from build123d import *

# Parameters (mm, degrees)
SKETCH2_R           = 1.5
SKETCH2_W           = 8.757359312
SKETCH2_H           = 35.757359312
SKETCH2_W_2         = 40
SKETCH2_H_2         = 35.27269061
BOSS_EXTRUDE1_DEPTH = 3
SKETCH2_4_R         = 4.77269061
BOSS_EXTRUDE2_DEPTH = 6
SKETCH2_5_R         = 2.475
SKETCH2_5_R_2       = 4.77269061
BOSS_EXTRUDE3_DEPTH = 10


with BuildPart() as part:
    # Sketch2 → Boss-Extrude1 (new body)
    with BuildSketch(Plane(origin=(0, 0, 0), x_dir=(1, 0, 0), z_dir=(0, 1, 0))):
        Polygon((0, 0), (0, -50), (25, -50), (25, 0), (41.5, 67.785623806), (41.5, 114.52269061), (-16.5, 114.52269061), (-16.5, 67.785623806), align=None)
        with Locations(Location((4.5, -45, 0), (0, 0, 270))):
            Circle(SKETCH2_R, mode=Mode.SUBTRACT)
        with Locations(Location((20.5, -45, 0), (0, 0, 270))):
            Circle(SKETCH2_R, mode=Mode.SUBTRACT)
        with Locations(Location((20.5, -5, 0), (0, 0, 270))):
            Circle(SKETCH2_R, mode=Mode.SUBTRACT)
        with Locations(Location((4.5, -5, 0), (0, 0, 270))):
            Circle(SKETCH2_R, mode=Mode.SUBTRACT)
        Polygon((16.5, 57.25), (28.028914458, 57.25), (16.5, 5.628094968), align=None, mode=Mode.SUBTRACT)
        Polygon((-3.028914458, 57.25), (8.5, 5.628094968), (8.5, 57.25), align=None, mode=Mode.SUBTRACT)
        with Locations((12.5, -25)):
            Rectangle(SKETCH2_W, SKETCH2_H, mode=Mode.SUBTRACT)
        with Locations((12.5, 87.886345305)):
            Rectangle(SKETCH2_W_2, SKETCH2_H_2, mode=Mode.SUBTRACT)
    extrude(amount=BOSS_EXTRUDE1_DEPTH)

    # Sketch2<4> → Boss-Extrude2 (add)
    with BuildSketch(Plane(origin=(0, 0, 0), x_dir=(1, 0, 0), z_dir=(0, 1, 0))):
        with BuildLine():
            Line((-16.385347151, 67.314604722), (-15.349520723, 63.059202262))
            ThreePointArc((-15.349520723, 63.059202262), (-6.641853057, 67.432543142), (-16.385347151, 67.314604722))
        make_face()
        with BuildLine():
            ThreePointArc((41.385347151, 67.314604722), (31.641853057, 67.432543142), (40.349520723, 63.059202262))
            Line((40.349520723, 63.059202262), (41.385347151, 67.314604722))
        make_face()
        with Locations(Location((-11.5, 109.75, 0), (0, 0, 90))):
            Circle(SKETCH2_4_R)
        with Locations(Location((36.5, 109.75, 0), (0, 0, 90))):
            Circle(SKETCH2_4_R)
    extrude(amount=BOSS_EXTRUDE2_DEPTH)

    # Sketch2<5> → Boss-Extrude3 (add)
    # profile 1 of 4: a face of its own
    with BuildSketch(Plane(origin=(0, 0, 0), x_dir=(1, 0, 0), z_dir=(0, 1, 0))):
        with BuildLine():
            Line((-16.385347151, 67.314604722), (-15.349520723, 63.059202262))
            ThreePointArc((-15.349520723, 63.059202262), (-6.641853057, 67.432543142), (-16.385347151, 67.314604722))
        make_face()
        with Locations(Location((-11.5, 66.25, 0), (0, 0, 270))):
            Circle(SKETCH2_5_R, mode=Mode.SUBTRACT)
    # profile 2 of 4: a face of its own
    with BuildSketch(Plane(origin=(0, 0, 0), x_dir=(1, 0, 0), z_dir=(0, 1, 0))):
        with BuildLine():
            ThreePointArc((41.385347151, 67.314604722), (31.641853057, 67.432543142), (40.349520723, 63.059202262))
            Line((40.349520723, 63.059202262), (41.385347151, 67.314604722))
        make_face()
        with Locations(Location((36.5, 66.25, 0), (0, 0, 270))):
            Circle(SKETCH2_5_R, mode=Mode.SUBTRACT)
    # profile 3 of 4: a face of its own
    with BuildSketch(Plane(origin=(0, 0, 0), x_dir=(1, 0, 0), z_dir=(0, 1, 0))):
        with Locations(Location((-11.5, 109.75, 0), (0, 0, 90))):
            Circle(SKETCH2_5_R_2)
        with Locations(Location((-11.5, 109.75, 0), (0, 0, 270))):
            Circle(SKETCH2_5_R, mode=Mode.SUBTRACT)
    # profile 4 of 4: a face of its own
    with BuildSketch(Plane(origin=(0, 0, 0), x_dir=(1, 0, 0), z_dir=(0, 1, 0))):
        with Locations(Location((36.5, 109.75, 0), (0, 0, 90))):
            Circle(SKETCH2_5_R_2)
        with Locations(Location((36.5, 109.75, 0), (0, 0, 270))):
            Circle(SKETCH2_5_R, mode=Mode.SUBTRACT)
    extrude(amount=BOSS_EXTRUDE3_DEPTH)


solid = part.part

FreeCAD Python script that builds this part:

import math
import FreeCAD as App
import Part
import Sketcher
Q = App.Units.Quantity


def add_polygon(sketch, points):
    """Adds a closed chain of lines whose ends are joined by coincident constraints."""
    first, n = sketch.GeometryCount, len(points)
    for a, b in zip(points, points[1:] + points[:1]):
        sketch.addGeometry(Part.LineSegment(App.Vector(*a, 0), App.Vector(*b, 0)), False)
    for i in range(n):
        sketch.addConstraint(Sketcher.Constraint("Coincident", first + i, 2, first + (i + 1) % n, 1))

doc = App.newDocument("Part")
body = doc.addObject("PartDesign::Body", "Body")

sketch1 = body.newObject("Sketcher::SketchObject", "Sketch")
sketch1.AttachmentSupport = (doc.getObject("XZ_Plane"), [""])
sketch1.MapMode = "FlatFace"
add_polygon(sketch1, [(0, 0), (0, 50), (25, 50), (25, 0), (41.5, -67.8), (41.5, -114.5), (-16.5, -114.5), (-16.5, -67.8)])
sketch1.addGeometry(Part.Circle(App.Vector(4.5, 45, 0), App.Vector(0, 0, 1), 1.5), False)
sketch1.addGeometry(Part.Circle(App.Vector(4.5, 5, 0), App.Vector(0, 0, 1), 1.5), False)
sketch1.addGeometry(Part.Circle(App.Vector(20.5, 45, 0), App.Vector(0, 0, 1), 1.5), False)
add_polygon(sketch1, [(16.9, 42.9), (8.1, 42.9), (8.1, 7.1), (16.9, 7.1)])
sketch1.addGeometry(Part.Circle(App.Vector(20.5, 5, 0), App.Vector(0, 0, 1), 1.5), False)
add_polygon(sketch1, [(8.5, -5.6), (-3, -57.2), (8.5, -57.2)])
add_polygon(sketch1, [(16.5, -5.6), (16.5, -57.2), (28, -57.2)])
add_polygon(sketch1, [(32.5, -70.2), (-7.5, -70.2), (-7.5, -105.5), (32.5, -105.5)])
sketch1.addConstraint(Sketcher.Constraint("Vertical", 0))
sketch1.addConstraint(Sketcher.Constraint("Horizontal", 1))
sketch1.addConstraint(Sketcher.Constraint("Vertical", 2))
sketch1.addConstraint(Sketcher.Constraint("Vertical", 4))
sketch1.addConstraint(Sketcher.Constraint("Horizontal", 5))
sketch1.addConstraint(Sketcher.Constraint("Vertical", 6))
sketch1.addConstraint(Sketcher.Constraint("Horizontal", 11))
sketch1.addConstraint(Sketcher.Constraint("Vertical", 12))
sketch1.addConstraint(Sketcher.Constraint("Horizontal", 13))
sketch1.addConstraint(Sketcher.Constraint("Vertical", 14))
sketch1.addConstraint(Sketcher.Constraint("Horizontal", 17))
sketch1.addConstraint(Sketcher.Constraint("Vertical", 18))
sketch1.addConstraint(Sketcher.Constraint("Vertical", 19))
sketch1.addConstraint(Sketcher.Constraint("Horizontal", 20))
sketch1.addConstraint(Sketcher.Constraint("Horizontal", 22))
sketch1.addConstraint(Sketcher.Constraint("Vertical", 23))
sketch1.addConstraint(Sketcher.Constraint("Horizontal", 24))
sketch1.addConstraint(Sketcher.Constraint("Vertical", 25))
sketch1.addConstraint(Sketcher.Constraint("Coincident", 7, 2, -1, 1))
sketch1.addConstraint(Sketcher.Constraint("Equal", 8, 9))
sketch1.addConstraint(Sketcher.Constraint("Equal", 9, 10))
sketch1.addConstraint(Sketcher.Constraint("Equal", 10, 15))
sketch1.addConstraint(Sketcher.Constraint("PointOnObject", 2, 2, -1))
sketch1.addConstraint(Sketcher.Constraint("Horizontal", 8, 3, 10, 3))
sketch1.addConstraint(Sketcher.Constraint("Horizontal", 9, 3, 15, 3))
sketch1.addConstraint(Sketcher.Constraint("Horizontal", 3, 2, 6, 2))
sketch1.addConstraint(Sketcher.Constraint("Horizontal", 17, 2, 19, 2))
sketch1.addConstraint(Sketcher.Constraint("Horizontal", 18, 2, 21, 2))
sketch1.addConstraint(Sketcher.Constraint("Vertical", 8, 3, 9, 3))
sketch1.addConstraint(Sketcher.Constraint("Vertical", 10, 3, 15, 3))
sketch1.addConstraint(Sketcher.Constraint("Equal", 17, 20))
sketch1.addConstraint(Sketcher.Constraint("Equal", 3, 7))
sketch1.addConstraint(Sketcher.Constraint("Diameter", 8, Q("3 mm")))
sketch1.addConstraint(Sketcher.Constraint("DistanceX", 1, 1, 1, 2, Q("25 mm")))
sketch1.addConstraint(Sketcher.Constraint("DistanceX", 5, 2, 5, 1, Q("58 mm")))
sketch1.addConstraint(Sketcher.Constraint("DistanceX", 22, 2, 22, 1, Q("40 mm")))
sketch1.addConstraint(Sketcher.Constraint("DistanceY", 0, 1, 0, 2, Q("50 mm")))
sketch1.addConstraint(Sketcher.Constraint("DistanceY", -1, 1, 8, 3, Q("45 mm")))
sketch1.addConstraint(Sketcher.Constraint("DistanceY", -1, 1, 9, 3, Q("5 mm")))
sketch1.addConstraint(Sketcher.Constraint("DistanceX", 8, 3, 10, 3, Q("16 mm")))
sketch1.addConstraint(Sketcher.Constraint("DistanceX", 15, 3, 3, 2, Q("21 mm")))
sketch1.addConstraint(Sketcher.Constraint("DistanceX", 6, 2, 17, 2, Q("25 mm")))
sketch1.addConstraint(Sketcher.Constraint("DistanceX", 17, 2, 19, 2, Q("8 mm")))
sketch1.addConstraint(Sketcher.Constraint("DistanceX", 6, 2, 22, 2, Q("9 mm")))
sketch1.addConstraint(Sketcher.Constraint("DistanceY", 22, 2, 16, 2, Q("13 mm")))
sketch1.addConstraint(Sketcher.Constraint("DistanceY", 5, 2, 23, 2, Q("9 mm")))
sketch1.addConstraint(Sketcher.Constraint("DistanceY", 16, 2, -1, 1, Q("57.25 mm")))
sketch1.addConstraint(Sketcher.Constraint("DistanceX", 11, 2, 11, 1, Q("8.757359 mm")))
sketch1.addConstraint(Sketcher.Constraint("DistanceY", 12, 2, 12, 1, Q("35.757359 mm")))
sketch1.addConstraint(Sketcher.Constraint("DistanceY", 23, 2, 23, 1, Q("35.272691 mm")))
sketch1.addConstraint(Sketcher.Constraint("Distance", 16, Q("52.893638 mm")))
sketch1.addConstraint(Sketcher.Constraint("DistanceX", 17, 1, 17, 2, Q("11.528914 mm")))
sketch1.addConstraint(Sketcher.Constraint("DistanceY", 4, 2, 4, 1, Q("46.737067 mm")))
sketch1.addConstraint(Sketcher.Constraint("DistanceX", -1, 1, 11, 2, Q("8.12132 mm")))
sketch1.addConstraint(Sketcher.Constraint("DistanceY", -1, 1, 11, 2, Q("42.87868 mm")))
pad1 = body.newObject("PartDesign::Pad", "Pad")
pad1.Profile = sketch1
pad1.Length = 3
pad1.Reversed = True

sketch2 = body.newObject("Sketcher::SketchObject", "Sketch001")
sketch2.AttachmentSupport = (doc.getObject("XZ_Plane"), [""])
sketch2.MapMode = "FlatFace"
sketch2.addGeometry(Part.LineSegment(App.Vector(-16.4, -67.3, 0), App.Vector(-15.3, -63.1, 0)), False)
sketch2.addGeometry(Part.ArcOfCircle(Part.Circle(App.Vector(-11.5, -66.2, 0), App.Vector(0, 0, 1), 5), math.radians(-168), math.radians(140)), False)
sketch2.addGeometry(Part.ArcOfCircle(Part.Circle(App.Vector(36.5, -66.2, 0), App.Vector(0, 0, 1), 5), math.radians(40), math.radians(348)), False)
sketch2.addGeometry(Part.LineSegment(App.Vector(40.3, -63.1, 0), App.Vector(41.4, -67.3, 0)), False)
sketch2.addGeometry(Part.Circle(App.Vector(-11.5, -109.8, 0), App.Vector(0, 0, 1), 4.8), False)
sketch2.addGeometry(Part.Circle(App.Vector(36.5, -109.8, 0), App.Vector(0, 0, 1), 4.8), False)
sketch2.addConstraint(Sketcher.Constraint("Coincident", 0, 1, 1, 1))
sketch2.addConstraint(Sketcher.Constraint("Coincident", 1, 2, 0, 2))
sketch2.addConstraint(Sketcher.Constraint("Coincident", 2, 1, 3, 1))
sketch2.addConstraint(Sketcher.Constraint("Coincident", 3, 2, 2, 2))
sketch2.addConstraint(Sketcher.Constraint("Equal", 1, 2))
sketch2.addConstraint(Sketcher.Constraint("Equal", 4, 5))
sketch2.addConstraint(Sketcher.Constraint("Horizontal", 1, 3, 2, 3))
sketch2.addConstraint(Sketcher.Constraint("Horizontal", 4, 3, 5, 3))
sketch2.addConstraint(Sketcher.Constraint("Horizontal", 1, 2, 2, 1))
sketch2.addConstraint(Sketcher.Constraint("Horizontal", 0, 1, 3, 2))
sketch2.addConstraint(Sketcher.Constraint("Vertical", 1, 3, 4, 3))
sketch2.addConstraint(Sketcher.Constraint("Vertical", 2, 3, 5, 3))
sketch2.addConstraint(Sketcher.Constraint("Radius", 1, Q("5 mm")))
sketch2.addConstraint(Sketcher.Constraint("DistanceX", 1, 3, 2, 3, Q("48 mm")))
sketch2.addConstraint(Sketcher.Constraint("DistanceX", 1, 3, -1, 1, Q("11.5 mm")))
sketch2.addConstraint(Sketcher.Constraint("DistanceY", 4, 3, 1, 3, Q("43.5 mm")))
sketch2.addConstraint(Sketcher.Constraint("Diameter", 4, Q("9.545381 mm")))
sketch2.addConstraint(Sketcher.Constraint("DistanceY", 1, 3, -1, 1, Q("66.25 mm")))
sketch2.addConstraint(Sketcher.Constraint("DistanceX", 1, 2, -1, 1, Q("15.349521 mm")))
sketch2.addConstraint(Sketcher.Constraint("Distance", 0, Q("4.379656 mm")))
pad2 = body.newObject("PartDesign::Pad", "Pad001")
pad2.Profile = sketch2
pad2.Length = 6
pad2.Reversed = True

sketch3 = body.newObject("Sketcher::SketchObject", "Sketch002")
sketch3.AttachmentSupport = (doc.getObject("XZ_Plane"), [""])
sketch3.MapMode = "FlatFace"
sketch3.addGeometry(Part.LineSegment(App.Vector(-16.4, -67.3, 0), App.Vector(-15.3, -63.1, 0)), False)
sketch3.addGeometry(Part.ArcOfCircle(Part.Circle(App.Vector(-11.5, -66.2, 0), App.Vector(0, 0, 1), 5), math.radians(-168), math.radians(140)), False)
sketch3.addGeometry(Part.Circle(App.Vector(-11.5, -66.2, 0), App.Vector(0, 0, 1), 2.5), False)
sketch3.addGeometry(Part.ArcOfCircle(Part.Circle(App.Vector(36.5, -66.2, 0), App.Vector(0, 0, 1), 5), math.radians(40), math.radians(348)), False)
sketch3.addGeometry(Part.LineSegment(App.Vector(40.3, -63.1, 0), App.Vector(41.4, -67.3, 0)), False)
sketch3.addGeometry(Part.Circle(App.Vector(36.5, -66.2, 0), App.Vector(0, 0, 1), 2.5), False)
sketch3.addGeometry(Part.Circle(App.Vector(-11.5, -109.8, 0), App.Vector(0, 0, 1), 4.8), False)
sketch3.addGeometry(Part.Circle(App.Vector(-11.5, -109.8, 0), App.Vector(0, 0, 1), 2.5), False)
sketch3.addGeometry(Part.Circle(App.Vector(36.5, -109.8, 0), App.Vector(0, 0, 1), 4.8), False)
sketch3.addGeometry(Part.Circle(App.Vector(36.5, -109.8, 0), App.Vector(0, 0, 1), 2.5), False)
sketch3.addConstraint(Sketcher.Constraint("Coincident", 0, 1, 1, 1))
sketch3.addConstraint(Sketcher.Constraint("Coincident", 1, 2, 0, 2))
sketch3.addConstraint(Sketcher.Constraint("Coincident", 3, 1, 4, 1))
sketch3.addConstraint(Sketcher.Constraint("Coincident", 4, 2, 3, 2))
sketch3.addConstraint(Sketcher.Constraint("Coincident", 2, 3, 1, 3))
sketch3.addConstraint(Sketcher.Constraint("Coincident", 5, 3, 3, 3))
sketch3.addConstraint(Sketcher.Constraint("Coincident", 7, 3, 6, 3))
sketch3.addConstraint(Sketcher.Constraint("Coincident", 9, 3, 8, 3))
sketch3.addConstraint(Sketcher.Constraint("Equal", 1, 3))
sketch3.addConstraint(Sketcher.Constraint("Equal", 2, 5))
sketch3.addConstraint(Sketcher.Constraint("Equal", 5, 7))
sketch3.addConstraint(Sketcher.Constraint("Equal", 6, 8))
sketch3.addConstraint(Sketcher.Constraint("Equal", 7, 9))
sketch3.addConstraint(Sketcher.Constraint("Horizontal", 2, 3, 3, 3))
sketch3.addConstraint(Sketcher.Constraint("Horizontal", 7, 3, 8, 3))
sketch3.addConstraint(Sketcher.Constraint("Horizontal", 1, 2, 3, 1))
sketch3.addConstraint(Sketcher.Constraint("Horizontal", 0, 1, 4, 2))
sketch3.addConstraint(Sketcher.Constraint("Vertical", 2, 3, 6, 3))
sketch3.addConstraint(Sketcher.Constraint("Vertical", 5, 3, 8, 3))
sketch3.addConstraint(Sketcher.Constraint("Radius", 1, Q("5 mm")))
sketch3.addConstraint(Sketcher.Constraint("Diameter", 2, Q("4.95 mm")))
sketch3.addConstraint(Sketcher.Constraint("DistanceX", 1, 3, 3, 3, Q("48 mm")))
sketch3.addConstraint(Sketcher.Constraint("DistanceX", 1, 3, -1, 1, Q("11.5 mm")))
sketch3.addConstraint(Sketcher.Constraint("DistanceY", 6, 3, 1, 3, Q("43.5 mm")))
sketch3.addConstraint(Sketcher.Constraint("Diameter", 6, Q("9.545381 mm")))
sketch3.addConstraint(Sketcher.Constraint("DistanceY", 1, 3, -1, 1, Q("66.25 mm")))
sketch3.addConstraint(Sketcher.Constraint("DistanceX", 1, 2, -1, 1, Q("15.349521 mm")))
sketch3.addConstraint(Sketcher.Constraint("Distance", 0, Q("4.379656 mm")))
pad3 = body.newObject("PartDesign::Pad", "Pad002")
pad3.Profile = sketch3
pad3.Length = 10
pad3.Reversed = True

doc.recompute()
